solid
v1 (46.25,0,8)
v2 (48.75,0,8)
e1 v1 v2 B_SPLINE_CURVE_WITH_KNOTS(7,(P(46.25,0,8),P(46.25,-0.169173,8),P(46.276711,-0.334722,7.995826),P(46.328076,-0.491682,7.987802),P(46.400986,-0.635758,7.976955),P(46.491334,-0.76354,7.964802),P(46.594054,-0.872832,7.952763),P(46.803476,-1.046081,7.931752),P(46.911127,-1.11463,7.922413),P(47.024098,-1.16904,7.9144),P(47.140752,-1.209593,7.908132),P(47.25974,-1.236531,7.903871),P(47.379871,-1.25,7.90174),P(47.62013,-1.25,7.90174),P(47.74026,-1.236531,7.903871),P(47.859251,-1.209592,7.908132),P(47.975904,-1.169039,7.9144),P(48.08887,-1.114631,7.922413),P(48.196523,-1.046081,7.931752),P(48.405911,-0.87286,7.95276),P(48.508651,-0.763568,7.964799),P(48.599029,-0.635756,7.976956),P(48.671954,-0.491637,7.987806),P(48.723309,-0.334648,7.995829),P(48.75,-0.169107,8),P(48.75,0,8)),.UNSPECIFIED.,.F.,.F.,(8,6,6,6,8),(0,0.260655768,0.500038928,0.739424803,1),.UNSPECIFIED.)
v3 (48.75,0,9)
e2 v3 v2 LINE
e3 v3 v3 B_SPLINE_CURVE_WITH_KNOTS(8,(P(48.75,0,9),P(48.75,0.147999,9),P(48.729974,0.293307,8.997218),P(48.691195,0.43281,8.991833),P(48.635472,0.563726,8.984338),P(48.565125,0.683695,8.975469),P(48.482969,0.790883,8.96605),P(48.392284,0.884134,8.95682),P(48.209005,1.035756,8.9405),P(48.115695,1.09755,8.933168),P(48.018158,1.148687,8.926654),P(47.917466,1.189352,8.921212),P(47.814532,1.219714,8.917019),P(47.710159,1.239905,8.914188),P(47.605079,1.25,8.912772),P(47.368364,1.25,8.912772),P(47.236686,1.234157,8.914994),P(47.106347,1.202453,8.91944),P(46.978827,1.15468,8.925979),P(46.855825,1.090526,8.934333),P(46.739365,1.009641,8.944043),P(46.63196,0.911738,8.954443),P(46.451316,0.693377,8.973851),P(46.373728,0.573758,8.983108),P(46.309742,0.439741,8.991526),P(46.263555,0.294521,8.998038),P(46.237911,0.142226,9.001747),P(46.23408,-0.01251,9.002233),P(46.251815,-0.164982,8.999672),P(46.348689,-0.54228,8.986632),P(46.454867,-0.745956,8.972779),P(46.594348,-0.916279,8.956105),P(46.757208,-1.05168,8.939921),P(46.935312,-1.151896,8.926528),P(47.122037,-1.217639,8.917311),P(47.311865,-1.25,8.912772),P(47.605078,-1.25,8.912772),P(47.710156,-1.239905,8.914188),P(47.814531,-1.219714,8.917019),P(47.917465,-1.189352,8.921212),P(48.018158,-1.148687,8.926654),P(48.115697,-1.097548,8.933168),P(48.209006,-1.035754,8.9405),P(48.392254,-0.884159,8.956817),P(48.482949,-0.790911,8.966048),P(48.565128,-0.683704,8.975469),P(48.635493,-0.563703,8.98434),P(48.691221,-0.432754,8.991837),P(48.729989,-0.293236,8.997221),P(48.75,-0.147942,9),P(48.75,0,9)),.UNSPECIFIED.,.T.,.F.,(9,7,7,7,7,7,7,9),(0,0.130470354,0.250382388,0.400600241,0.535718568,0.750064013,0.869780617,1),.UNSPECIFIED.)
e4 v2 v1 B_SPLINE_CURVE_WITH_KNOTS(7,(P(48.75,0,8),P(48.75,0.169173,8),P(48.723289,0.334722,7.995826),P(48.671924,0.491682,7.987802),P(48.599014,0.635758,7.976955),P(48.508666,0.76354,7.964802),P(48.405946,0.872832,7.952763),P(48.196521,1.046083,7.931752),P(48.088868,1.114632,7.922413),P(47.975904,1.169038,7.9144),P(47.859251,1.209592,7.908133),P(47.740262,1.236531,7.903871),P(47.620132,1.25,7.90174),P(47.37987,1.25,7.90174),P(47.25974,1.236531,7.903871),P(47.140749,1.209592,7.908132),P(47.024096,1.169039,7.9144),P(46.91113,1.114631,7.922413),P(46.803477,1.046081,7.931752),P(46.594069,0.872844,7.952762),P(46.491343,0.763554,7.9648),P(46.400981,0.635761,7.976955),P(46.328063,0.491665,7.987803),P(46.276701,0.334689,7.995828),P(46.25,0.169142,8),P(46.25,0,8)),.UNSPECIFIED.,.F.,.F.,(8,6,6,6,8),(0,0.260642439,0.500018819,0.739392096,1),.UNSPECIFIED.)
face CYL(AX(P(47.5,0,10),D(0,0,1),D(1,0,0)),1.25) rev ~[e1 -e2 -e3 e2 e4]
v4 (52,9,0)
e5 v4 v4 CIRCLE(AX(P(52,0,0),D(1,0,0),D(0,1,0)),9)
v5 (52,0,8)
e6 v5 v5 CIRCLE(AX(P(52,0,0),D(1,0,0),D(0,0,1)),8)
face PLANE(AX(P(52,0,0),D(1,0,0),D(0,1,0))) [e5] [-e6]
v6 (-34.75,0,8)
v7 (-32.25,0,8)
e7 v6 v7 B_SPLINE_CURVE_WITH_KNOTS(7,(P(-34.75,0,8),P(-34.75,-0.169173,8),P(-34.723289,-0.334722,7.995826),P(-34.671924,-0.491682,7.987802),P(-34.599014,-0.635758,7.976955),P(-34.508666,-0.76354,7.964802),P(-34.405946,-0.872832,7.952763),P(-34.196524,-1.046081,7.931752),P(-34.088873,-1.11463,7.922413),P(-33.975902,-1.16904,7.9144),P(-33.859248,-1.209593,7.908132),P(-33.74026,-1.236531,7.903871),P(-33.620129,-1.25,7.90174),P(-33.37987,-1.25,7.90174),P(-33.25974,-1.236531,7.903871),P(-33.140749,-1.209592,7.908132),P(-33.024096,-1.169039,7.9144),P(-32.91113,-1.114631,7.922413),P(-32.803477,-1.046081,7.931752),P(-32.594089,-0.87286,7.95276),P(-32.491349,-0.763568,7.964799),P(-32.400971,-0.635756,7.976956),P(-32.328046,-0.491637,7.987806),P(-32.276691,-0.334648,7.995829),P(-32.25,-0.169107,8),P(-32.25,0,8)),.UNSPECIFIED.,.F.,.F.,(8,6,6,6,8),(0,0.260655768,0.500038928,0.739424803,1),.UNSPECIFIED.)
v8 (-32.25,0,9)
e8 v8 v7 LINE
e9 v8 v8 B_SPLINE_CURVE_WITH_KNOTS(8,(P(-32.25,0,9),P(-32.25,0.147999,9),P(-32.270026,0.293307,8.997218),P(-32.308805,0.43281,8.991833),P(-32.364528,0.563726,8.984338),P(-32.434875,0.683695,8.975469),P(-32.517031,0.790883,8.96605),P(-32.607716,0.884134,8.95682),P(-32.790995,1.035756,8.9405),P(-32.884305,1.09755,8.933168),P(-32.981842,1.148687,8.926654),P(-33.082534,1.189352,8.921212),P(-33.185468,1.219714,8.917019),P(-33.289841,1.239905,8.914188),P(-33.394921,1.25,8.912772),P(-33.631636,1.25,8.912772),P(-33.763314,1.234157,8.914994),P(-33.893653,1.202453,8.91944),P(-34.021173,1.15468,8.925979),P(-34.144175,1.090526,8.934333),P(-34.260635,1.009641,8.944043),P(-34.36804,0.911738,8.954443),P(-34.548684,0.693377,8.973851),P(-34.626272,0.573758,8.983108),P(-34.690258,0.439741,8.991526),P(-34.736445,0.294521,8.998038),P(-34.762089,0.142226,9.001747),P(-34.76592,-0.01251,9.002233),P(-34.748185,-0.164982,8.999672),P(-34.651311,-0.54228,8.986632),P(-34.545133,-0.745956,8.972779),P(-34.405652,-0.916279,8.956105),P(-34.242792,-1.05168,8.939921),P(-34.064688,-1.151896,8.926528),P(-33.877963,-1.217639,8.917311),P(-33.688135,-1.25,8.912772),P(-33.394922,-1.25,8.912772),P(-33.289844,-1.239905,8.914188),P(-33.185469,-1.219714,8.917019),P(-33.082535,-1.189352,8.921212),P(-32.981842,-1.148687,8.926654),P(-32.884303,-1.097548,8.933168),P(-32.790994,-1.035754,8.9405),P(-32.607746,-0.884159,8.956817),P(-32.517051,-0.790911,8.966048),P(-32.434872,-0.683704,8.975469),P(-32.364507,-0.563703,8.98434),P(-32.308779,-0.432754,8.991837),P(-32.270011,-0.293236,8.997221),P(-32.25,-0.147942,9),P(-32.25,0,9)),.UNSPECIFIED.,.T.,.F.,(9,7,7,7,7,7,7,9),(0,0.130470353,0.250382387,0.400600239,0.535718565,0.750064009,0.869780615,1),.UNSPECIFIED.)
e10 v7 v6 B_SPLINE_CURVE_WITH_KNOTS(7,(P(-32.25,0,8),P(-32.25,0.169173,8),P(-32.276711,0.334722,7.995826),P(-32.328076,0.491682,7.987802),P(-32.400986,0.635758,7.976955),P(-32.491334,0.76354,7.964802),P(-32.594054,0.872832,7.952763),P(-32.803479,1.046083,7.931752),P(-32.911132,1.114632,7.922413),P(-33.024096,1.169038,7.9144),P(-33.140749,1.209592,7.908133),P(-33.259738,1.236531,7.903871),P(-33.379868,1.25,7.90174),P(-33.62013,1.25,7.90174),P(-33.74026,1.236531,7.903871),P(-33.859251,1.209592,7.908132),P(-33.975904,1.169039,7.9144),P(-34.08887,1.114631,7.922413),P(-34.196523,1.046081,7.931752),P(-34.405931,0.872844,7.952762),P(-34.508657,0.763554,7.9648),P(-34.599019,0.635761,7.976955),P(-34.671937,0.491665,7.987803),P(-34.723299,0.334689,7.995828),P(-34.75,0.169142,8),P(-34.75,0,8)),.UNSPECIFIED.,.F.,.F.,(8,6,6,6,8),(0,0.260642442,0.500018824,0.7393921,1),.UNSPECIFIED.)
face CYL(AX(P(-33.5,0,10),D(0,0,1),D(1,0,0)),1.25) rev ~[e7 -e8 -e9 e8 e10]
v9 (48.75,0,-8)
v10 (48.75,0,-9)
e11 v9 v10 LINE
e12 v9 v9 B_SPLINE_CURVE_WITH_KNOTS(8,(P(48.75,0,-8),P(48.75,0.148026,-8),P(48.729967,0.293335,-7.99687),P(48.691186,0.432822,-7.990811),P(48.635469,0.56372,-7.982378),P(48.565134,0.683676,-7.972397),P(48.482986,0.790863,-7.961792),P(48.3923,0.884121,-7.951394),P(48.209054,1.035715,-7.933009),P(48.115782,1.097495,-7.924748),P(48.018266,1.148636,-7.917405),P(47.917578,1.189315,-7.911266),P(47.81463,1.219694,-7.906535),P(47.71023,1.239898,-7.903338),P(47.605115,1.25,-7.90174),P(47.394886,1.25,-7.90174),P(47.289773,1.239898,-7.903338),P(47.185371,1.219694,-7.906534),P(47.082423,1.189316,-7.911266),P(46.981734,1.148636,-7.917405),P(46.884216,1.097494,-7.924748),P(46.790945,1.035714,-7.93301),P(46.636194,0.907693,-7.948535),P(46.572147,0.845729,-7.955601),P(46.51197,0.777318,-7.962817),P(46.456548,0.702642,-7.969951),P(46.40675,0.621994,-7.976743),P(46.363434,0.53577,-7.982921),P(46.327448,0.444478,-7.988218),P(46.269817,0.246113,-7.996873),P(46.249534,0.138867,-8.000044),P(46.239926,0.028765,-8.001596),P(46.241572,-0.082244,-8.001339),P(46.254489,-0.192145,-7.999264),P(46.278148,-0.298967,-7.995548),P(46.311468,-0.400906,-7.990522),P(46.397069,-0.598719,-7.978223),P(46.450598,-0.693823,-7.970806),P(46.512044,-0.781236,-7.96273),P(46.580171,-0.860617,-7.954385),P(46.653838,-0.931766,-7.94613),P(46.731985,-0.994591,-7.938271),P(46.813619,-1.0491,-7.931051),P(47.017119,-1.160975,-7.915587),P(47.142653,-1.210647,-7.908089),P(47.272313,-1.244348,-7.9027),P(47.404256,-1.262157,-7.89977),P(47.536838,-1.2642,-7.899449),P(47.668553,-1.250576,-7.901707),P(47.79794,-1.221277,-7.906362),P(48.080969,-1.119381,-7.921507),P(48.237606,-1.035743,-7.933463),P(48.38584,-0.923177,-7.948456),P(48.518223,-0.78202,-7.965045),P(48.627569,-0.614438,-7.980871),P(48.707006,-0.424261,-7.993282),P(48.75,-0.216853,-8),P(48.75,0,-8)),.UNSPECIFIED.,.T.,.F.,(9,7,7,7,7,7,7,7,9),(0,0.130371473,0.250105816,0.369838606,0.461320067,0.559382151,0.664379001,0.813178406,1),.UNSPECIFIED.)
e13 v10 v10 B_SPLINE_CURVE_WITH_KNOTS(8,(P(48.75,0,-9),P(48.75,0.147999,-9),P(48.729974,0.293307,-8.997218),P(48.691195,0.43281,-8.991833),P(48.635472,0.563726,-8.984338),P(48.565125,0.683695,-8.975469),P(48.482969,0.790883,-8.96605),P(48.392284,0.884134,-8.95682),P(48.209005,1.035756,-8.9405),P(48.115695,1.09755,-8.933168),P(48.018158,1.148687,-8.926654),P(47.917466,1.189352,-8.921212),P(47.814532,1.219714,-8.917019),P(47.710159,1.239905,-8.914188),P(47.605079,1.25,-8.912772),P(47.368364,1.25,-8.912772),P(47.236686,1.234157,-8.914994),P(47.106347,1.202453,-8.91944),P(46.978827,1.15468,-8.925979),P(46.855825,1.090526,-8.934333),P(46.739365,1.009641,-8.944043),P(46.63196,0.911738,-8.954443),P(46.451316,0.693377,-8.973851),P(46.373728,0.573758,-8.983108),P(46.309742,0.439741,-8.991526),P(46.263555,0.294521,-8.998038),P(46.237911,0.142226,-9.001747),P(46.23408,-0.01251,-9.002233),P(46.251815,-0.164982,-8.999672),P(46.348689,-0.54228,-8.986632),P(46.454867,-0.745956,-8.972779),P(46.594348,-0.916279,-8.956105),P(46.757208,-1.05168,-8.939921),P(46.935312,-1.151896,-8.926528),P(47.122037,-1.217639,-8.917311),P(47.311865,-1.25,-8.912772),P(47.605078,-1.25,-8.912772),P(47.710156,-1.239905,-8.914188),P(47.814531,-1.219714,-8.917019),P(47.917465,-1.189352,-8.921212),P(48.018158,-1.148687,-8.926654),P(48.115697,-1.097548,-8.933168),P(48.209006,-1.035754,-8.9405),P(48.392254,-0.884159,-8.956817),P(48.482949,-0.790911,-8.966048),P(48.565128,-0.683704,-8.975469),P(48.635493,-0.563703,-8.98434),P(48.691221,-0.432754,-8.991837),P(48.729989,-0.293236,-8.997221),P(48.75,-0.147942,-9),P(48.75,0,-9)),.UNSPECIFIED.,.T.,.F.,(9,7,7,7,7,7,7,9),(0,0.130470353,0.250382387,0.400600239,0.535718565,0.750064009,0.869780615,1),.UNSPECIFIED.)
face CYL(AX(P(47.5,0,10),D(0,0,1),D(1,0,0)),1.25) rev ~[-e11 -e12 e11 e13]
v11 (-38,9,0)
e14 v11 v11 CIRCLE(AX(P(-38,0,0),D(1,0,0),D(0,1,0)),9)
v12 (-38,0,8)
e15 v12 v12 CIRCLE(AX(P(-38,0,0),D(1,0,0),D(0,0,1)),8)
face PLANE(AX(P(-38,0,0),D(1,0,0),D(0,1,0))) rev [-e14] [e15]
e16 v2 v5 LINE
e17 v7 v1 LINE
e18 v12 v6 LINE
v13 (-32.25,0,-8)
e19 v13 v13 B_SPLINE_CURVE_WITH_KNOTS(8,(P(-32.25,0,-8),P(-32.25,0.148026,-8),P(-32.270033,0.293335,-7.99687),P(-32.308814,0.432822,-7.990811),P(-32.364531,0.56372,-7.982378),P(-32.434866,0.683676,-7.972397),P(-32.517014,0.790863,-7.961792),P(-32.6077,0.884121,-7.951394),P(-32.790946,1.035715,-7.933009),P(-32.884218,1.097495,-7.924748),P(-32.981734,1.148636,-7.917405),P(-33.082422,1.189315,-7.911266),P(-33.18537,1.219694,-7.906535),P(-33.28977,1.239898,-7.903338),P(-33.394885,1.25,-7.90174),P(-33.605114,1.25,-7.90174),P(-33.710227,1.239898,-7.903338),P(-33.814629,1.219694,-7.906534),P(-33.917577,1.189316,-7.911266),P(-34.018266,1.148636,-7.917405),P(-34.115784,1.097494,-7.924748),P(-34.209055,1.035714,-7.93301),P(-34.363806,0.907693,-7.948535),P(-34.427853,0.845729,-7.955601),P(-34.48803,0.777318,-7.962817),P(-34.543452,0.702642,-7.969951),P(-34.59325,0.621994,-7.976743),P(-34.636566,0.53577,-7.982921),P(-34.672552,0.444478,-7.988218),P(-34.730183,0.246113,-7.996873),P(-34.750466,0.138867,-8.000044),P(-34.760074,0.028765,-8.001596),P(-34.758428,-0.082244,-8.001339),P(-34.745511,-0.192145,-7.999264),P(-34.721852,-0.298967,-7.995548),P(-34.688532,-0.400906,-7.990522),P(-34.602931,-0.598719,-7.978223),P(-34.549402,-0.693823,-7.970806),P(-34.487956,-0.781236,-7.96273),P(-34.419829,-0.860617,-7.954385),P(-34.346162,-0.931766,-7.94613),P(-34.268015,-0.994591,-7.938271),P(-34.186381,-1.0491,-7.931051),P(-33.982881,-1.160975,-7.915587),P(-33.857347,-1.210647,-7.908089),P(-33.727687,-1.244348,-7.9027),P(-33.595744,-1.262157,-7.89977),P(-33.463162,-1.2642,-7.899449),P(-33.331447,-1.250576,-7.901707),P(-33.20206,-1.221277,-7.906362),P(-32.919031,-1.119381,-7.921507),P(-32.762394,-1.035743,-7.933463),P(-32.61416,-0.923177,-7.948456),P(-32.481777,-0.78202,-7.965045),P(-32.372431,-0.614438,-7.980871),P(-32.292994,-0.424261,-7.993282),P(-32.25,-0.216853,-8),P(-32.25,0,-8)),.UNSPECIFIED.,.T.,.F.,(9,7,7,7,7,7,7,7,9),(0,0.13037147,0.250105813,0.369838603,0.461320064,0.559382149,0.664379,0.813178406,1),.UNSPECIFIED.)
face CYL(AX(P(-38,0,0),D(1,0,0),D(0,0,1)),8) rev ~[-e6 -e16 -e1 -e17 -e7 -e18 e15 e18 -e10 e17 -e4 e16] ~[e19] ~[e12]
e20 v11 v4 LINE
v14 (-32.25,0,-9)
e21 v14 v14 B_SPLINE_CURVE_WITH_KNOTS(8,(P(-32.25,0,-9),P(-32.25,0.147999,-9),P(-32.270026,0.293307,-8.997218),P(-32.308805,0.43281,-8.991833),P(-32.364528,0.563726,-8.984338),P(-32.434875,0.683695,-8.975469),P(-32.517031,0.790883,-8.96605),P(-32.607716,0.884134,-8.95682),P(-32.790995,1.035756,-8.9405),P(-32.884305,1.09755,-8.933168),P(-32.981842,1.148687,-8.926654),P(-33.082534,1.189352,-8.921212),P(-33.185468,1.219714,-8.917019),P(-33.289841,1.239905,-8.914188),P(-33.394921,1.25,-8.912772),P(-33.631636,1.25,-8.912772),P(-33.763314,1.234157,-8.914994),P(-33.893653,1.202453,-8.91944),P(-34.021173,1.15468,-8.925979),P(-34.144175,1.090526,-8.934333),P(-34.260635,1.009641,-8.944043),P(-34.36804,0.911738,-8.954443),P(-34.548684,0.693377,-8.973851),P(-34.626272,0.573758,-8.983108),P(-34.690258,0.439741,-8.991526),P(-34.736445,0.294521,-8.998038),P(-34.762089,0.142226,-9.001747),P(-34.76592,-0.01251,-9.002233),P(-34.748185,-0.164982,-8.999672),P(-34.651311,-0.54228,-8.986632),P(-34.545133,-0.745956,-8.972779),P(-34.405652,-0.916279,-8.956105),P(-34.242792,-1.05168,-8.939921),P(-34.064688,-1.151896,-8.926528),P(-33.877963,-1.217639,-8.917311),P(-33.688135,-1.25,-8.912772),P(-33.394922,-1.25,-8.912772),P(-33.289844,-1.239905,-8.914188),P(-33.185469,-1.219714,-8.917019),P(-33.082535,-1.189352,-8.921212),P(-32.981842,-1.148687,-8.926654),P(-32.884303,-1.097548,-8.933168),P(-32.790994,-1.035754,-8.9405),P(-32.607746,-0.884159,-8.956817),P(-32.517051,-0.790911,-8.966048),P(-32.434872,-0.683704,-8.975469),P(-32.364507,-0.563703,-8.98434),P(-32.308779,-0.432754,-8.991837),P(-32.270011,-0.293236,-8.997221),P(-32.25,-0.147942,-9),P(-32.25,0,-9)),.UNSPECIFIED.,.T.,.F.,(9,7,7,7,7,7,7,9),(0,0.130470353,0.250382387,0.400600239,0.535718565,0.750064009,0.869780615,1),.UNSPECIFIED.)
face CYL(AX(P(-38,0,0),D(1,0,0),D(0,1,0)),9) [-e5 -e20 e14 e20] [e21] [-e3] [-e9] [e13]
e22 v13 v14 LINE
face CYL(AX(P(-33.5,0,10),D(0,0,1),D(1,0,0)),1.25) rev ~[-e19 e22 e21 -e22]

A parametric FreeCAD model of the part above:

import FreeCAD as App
import Part
import Sketcher
Q = App.Units.Quantity

doc = App.newDocument("Part")
body = doc.addObject("PartDesign::Body", "Body")

sketch1 = doc.addObject("Sketcher::SketchObject", "Sketch")
body.addObject(sketch1)
sketch1.AttachmentSupport = (doc.XY_Plane, [""])
sketch1.MapMode = "FlatFace"
sketch1.addGeometry(Part.LineSegment(App.Vector(52, 9, 0), App.Vector(-38, 9, 0)), False)
sketch1.addGeometry(Part.LineSegment(App.Vector(-38, 9, 0), App.Vector(-38, 0, 0)), False)
sketch1.addGeometry(Part.LineSegment(App.Vector(-38, 0, 0), App.Vector(52, 0, 0)), False)
sketch1.addGeometry(Part.LineSegment(App.Vector(52, 0, 0), App.Vector(52, 9, 0)), False)
sketch1.addConstraint(Sketcher.Constraint("Coincident", 0, 2, 1, 1))
sketch1.addConstraint(Sketcher.Constraint("Coincident", 1, 2, 2, 1))
sketch1.addConstraint(Sketcher.Constraint("Coincident", 2, 2, 3, 1))
sketch1.addConstraint(Sketcher.Constraint("Coincident", 3, 2, 0, 1))
sketch1.addConstraint(Sketcher.Constraint("Horizontal", 0))
sketch1.addConstraint(Sketcher.Constraint("Vertical", 1))
sketch1.addConstraint(Sketcher.Constraint("Horizontal", 2))
sketch1.addConstraint(Sketcher.Constraint("Vertical", 3))
sketch1.addConstraint(Sketcher.Constraint("PointOnObject", 1, 2, -1))
sketch1.addConstraint(Sketcher.Constraint("DistanceX", 0, 2, 0, 1, Q("90 mm")))
sketch1.addConstraint(Sketcher.Constraint("DistanceY", 1, 2, 1, 1, Q("9 mm")))
sketch1.addConstraint(Sketcher.Constraint("DistanceX", 0, 2, -1, 1, Q("38 mm")))
revolution = doc.addObject("PartDesign::Revolution", "Revolution")
body.addObject(revolution)
revolution.Profile = sketch1
revolution.ReferenceAxis = (sketch1, ["H_Axis"])
revolution.Angle = 360

sketch2 = doc.addObject("Sketcher::SketchObject", "Sketch001")
body.addObject(sketch2)
sketch2.AttachmentSupport = (doc.YZ_Plane, [""])
sketch2.MapMode = "FlatFace"
sketch2.AttachmentOffset = App.Placement(App.Vector(0, 0, -38), App.Rotation())
sketch2.addGeometry(Part.Circle(App.Vector(0, 0, 0), App.Vector(0, 0, 1), 8), False)
sketch2.addConstraint(Sketcher.Constraint("Coincident", 0, 3, -1, 1))
sketch2.addConstraint(Sketcher.Constraint("Diameter", 0, Q("16 mm")))
doc.recompute()
hole = doc.addObject("PartDesign::Hole", "Hole")
body.addObject(hole)
hole.Profile = sketch2
hole.ThreadType = "None"
hole.Diameter = 16
hole.DepthType = "ThroughAll"
hole.Reversed = True

sketch3 = doc.addObject("Sketcher::SketchObject", "Sketch002")
body.addObject(sketch3)
sketch3.AttachmentSupport = (doc.XY_Plane, [""])
sketch3.MapMode = "FlatFace"
sketch3.AttachmentOffset = App.Placement(App.Vector(0, 0, 10), App.Rotation())
sketch3.addGeometry(Part.Circle(App.Vector(-33.5, 0, 0), App.Vector(0, 0, 1), 1.25), False)
sketch3.addGeometry(Part.Circle(App.Vector(47.5, 0, 0), App.Vector(0, 0, 1), 1.25), False)
sketch3.addConstraint(Sketcher.Constraint("Equal", 0, 1))
sketch3.addConstraint(Sketcher.Constraint("PointOnObject", 0, 3, -1))
sketch3.addConstraint(Sketcher.Constraint("PointOnObject", 1, 3, -1))
sketch3.addConstraint(Sketcher.Constraint("Diameter", 0, Q("2.5 mm")))
sketch3.addConstraint(Sketcher.Constraint("DistanceX", 0, 3, 1, 3, Q("81 mm")))
sketch3.addConstraint(Sketcher.Constraint("DistanceX", 0, 3, -1, 1, Q("33.5 mm")))
pocket1 = doc.addObject("PartDesign::Pocket", "Pocket")
body.addObject(pocket1)
pocket1.Profile = sketch3
pocket1.Type = "ThroughAll"

doc.recompute()
